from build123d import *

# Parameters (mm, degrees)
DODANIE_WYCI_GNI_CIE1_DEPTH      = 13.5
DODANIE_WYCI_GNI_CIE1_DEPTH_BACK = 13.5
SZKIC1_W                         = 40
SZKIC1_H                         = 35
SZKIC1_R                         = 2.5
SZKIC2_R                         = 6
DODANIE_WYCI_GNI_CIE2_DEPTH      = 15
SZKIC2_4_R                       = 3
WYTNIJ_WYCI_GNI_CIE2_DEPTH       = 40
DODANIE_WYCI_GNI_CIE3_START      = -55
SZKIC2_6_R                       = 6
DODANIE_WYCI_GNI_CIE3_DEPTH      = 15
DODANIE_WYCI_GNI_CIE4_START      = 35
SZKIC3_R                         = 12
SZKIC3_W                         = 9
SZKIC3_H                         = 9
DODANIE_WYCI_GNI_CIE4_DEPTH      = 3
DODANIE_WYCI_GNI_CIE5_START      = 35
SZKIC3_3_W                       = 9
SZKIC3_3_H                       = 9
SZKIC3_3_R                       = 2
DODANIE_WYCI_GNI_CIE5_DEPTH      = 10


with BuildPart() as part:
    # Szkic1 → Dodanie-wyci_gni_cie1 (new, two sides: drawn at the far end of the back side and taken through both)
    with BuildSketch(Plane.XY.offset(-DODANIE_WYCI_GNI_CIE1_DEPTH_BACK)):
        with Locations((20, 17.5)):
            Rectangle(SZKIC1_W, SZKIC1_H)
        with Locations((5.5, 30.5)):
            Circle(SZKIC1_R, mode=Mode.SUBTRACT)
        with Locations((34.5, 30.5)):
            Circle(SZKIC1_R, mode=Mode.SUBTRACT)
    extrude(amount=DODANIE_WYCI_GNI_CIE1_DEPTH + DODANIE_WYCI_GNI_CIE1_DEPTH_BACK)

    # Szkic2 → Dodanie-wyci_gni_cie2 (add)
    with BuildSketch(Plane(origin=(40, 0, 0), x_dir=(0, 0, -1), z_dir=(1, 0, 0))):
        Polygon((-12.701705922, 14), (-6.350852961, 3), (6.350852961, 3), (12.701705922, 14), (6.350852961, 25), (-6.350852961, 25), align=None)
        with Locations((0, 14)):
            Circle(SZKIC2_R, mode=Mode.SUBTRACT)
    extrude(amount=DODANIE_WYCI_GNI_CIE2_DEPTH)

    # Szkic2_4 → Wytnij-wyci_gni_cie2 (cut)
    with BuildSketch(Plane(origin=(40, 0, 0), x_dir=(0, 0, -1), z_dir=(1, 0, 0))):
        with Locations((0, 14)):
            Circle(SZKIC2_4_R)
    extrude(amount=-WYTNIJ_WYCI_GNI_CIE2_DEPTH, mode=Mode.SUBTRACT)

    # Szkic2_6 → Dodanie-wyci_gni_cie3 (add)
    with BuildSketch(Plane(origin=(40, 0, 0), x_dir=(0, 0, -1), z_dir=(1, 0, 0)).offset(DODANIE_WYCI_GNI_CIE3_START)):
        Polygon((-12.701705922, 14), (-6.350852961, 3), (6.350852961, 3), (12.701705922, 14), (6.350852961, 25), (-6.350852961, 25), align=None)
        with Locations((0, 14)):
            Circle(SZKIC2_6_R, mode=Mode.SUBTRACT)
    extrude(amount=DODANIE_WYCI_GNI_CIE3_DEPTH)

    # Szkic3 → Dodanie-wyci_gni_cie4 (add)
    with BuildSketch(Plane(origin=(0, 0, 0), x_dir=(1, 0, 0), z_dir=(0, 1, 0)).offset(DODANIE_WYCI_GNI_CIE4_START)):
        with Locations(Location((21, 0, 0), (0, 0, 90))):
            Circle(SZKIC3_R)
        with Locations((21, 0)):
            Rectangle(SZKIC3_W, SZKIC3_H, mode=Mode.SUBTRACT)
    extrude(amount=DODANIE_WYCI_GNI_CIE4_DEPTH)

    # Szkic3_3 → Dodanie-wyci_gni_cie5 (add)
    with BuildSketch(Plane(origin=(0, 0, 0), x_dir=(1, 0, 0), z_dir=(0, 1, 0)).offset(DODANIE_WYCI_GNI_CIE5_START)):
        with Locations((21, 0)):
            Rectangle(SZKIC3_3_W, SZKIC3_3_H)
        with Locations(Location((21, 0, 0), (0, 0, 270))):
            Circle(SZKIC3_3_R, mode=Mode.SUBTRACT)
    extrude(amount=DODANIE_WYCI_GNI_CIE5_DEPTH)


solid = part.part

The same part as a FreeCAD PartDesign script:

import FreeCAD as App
import Part
import Sketcher
Q = App.Units.Quantity

doc = App.newDocument("Part")
params = doc.addObject("Spreadsheet::Sheet", "Params")
for row, (alias, value) in enumerate([
    ("sketch1_diameter", "5 mm"),
    ("sketch1_width", "40 mm"),
    ("sketch1_height", "35 mm"),
    ("pad1_length", "13.5 mm"),
    ("pad1_length2", "13.5 mm"),
    ("sketch2_diameter", "12 mm"),
    ("pad2_length", "15 mm"),
    ("sketch3_diameter", "6 mm"),
    ("pocket1_length", "40 mm"),
    ("sketch4_diameter", "12 mm"),
    ("pad3_length", "15 mm"),
    ("sketch5_diameter", "24 mm"),
    ("sketch5_width", "9 mm"),
    ("pad4_length", "3 mm"),
    ("sketch6_diameter", "4 mm"),
    ("sketch6_width", "9 mm"),
    ("pad5_length", "10 mm"),
], start=1):
    params.set(f"A{row}", alias)
    params.set(f"B{row}", "=" + value)
    params.setAlias(f"B{row}", alias)

body = doc.addObject("PartDesign::Body", "Body")

# Sketch on XY plane
sketch1 = body.newObject("Sketcher::SketchObject", "Sketch")
sketch1.AttachmentSupport = (doc.getObject("XY_Plane"), [""])
sketch1.MapMode = "FlatFace"
sketch1.addGeometry([
    Part.LineSegment(App.Vector(0, 35, 0), App.Vector(0, 0, 0)),  # 0
    Part.LineSegment(App.Vector(0, 0, 0), App.Vector(40, 0, 0)),  # 1
    Part.LineSegment(App.Vector(40, 0, 0), App.Vector(40, 35, 0)),  # 2
    Part.LineSegment(App.Vector(40, 35, 0), App.Vector(0, 35, 0)),  # 3
    Part.Circle(App.Vector(5.5, 30.5, 0), App.Vector(0, 0, 1), 2.5),  # 4
    Part.Circle(App.Vector(34.5, 30.5, 0), App.Vector(0, 0, 1), 2.5),  # 5
], False)
sketch1.addConstraint([
    Sketcher.Constraint("Coincident", 0, 2, 1, 1),
    Sketcher.Constraint("Coincident", 1, 2, 2, 1),
    Sketcher.Constraint("Coincident", 2, 2, 3, 1),
    Sketcher.Constraint("Coincident", 3, 2, 0, 1),
    Sketcher.Constraint("Vertical", 0),
    Sketcher.Constraint("Horizontal", 1),
    Sketcher.Constraint("Vertical", 2),
    Sketcher.Constraint("Horizontal", 3),
    Sketcher.Constraint("Coincident", 0, 2, -1, 1),
    Sketcher.Constraint("Equal", 4, 5),
    Sketcher.Constraint("Horizontal", 4, 3, 5, 3),
    Sketcher.Constraint("Diameter", 4, Q("5 mm")),
    Sketcher.Constraint("DistanceX", 1, 1, 1, 2, Q("40 mm")),
    Sketcher.Constraint("DistanceY", 0, 2, 0, 1, Q("35 mm")),
    Sketcher.Constraint("DistanceX", 4, 3, 5, 3, Q("29 mm")),
    Sketcher.Constraint("DistanceX", -1, 1, 4, 3, Q("5.5 mm")),
    Sketcher.Constraint("DistanceY", -1, 1, 4, 3, Q("30.5 mm")),
])
sketch1.setExpression("Constraints[11]", "Params.sketch1_diameter")
sketch1.setExpression("Constraints[12]", "Params.sketch1_width")
sketch1.setExpression("Constraints[13]", "Params.sketch1_height")
pad1 = body.newObject("PartDesign::Pad", "Pad")
pad1.Profile = sketch1
pad1.Type = "TwoLengths"
pad1.setExpression("Length", "Params.pad1_length")
pad1.setExpression("Length2", "Params.pad1_length2")

# Sketch on YZ plane
sketch2 = body.newObject("Sketcher::SketchObject", "Sketch001")
sketch2.AttachmentSupport = (doc.getObject("YZ_Plane"), [""])
sketch2.MapMode = "FlatFace"
sketch2.AttachmentOffset = App.Placement(App.Vector(0, 0, 40), App.Rotation())
sketch2.addGeometry([
    Part.LineSegment(App.Vector(14, 13, 0), App.Vector(3, 6, 0)),  # 0
    Part.LineSegment(App.Vector(3, 6, 0), App.Vector(3, -6, 0)),  # 1
    Part.LineSegment(App.Vector(3, -6, 0), App.Vector(14, -13, 0)),  # 2
    Part.LineSegment(App.Vector(14, -13, 0), App.Vector(25, -6, 0)),  # 3
    Part.LineSegment(App.Vector(25, -6, 0), App.Vector(25, 6, 0)),  # 4
    Part.LineSegment(App.Vector(25, 6, 0), App.Vector(14, 13, 0)),  # 5
    Part.Circle(App.Vector(14, 0, 0), App.Vector(0, 0, 1), 6),  # 6
], False)
sketch2.addConstraint([
    Sketcher.Constraint("Coincident", 0, 2, 1, 1),
    Sketcher.Constraint("Coincident", 1, 2, 2, 1),
    Sketcher.Constraint("Coincident", 2, 2, 3, 1),
    Sketcher.Constraint("Coincident", 3, 2, 4, 1),
    Sketcher.Constraint("Coincident", 4, 2, 5, 1),
    Sketcher.Constraint("Coincident", 5, 2, 0, 1),
    Sketcher.Constraint("Vertical", 1),
    Sketcher.Constraint("Vertical", 4),
    Sketcher.Constraint("Symmetric", 2, 2, 5, 2, -1),
    Sketcher.Constraint("PointOnObject", 6, 3, -1),
    Sketcher.Constraint("Parallel", 0, 3),
    Sketcher.Constraint("Parallel", 2, 5),
    Sketcher.Constraint("Horizontal", 1, 2, 3, 2),
    Sketcher.Constraint("Horizontal", 0, 2, 4, 2),
    Sketcher.Constraint("Vertical", 6, 3, 2, 2),
    Sketcher.Constraint("Diameter", 6, Q("12 mm")),
    Sketcher.Constraint("Angle", 0, Q("-150 deg")),
    Sketcher.Constraint("DistanceX", -1, 1, 6, 3, Q("14 mm")),
    Sketcher.Constraint("DistanceX", -1, 1, 0, 2, Q("3 mm")),
    Sketcher.Constraint("DistanceY", 1, 2, 1, 1, Q("12.701706 mm")),
])
sketch2.setExpression("Constraints[15]", "Params.sketch2_diameter")
pad2 = body.newObject("PartDesign::Pad", "Pad001")
pad2.Profile = sketch2
pad2.setExpression("Length", "Params.pad2_length")

# Sketch on YZ plane
sketch3 = body.newObject("Sketcher::SketchObject", "Sketch002")
sketch3.AttachmentSupport = (doc.getObject("YZ_Plane"), [""])
sketch3.MapMode = "FlatFace"
sketch3.AttachmentOffset = App.Placement(App.Vector(0, 0, 40), App.Rotation())
sketch3.addGeometry(Part.Circle(App.Vector(14, 0, 0), App.Vector(0, 0, 1), 3), False)
sketch3.addConstraint([
    Sketcher.Constraint("PointOnObject", 0, 3, -1),
    Sketcher.Constraint("Diameter", 0, Q("6 mm")),
    Sketcher.Constraint("DistanceX", -1, 1, 0, 3, Q("14 mm")),
])
sketch3.setExpression("Constraints[1]", "Params.sketch3_diameter")
pocket1 = body.newObject("PartDesign::Pocket", "Pocket")
pocket1.Profile = sketch3
pocket1.setExpression("Length", "Params.pocket1_length")

# Sketch on YZ plane
sketch4 = body.newObject("Sketcher::SketchObject", "Sketch003")
sketch4.AttachmentSupport = (doc.getObject("YZ_Plane"), [""])
sketch4.MapMode = "FlatFace"
sketch4.AttachmentOffset = App.Placement(App.Vector(0, 0, -15), App.Rotation())
sketch4.addGeometry([
    Part.LineSegment(App.Vector(14, 13, 0), App.Vector(3, 6, 0)),  # 0
    Part.LineSegment(App.Vector(3, 6, 0), App.Vector(3, -6, 0)),  # 1
    Part.LineSegment(App.Vector(3, -6, 0), App.Vector(14, -13, 0)),  # 2
    Part.LineSegment(App.Vector(14, -13, 0), App.Vector(25, -6, 0)),  # 3
    Part.LineSegment(App.Vector(25, -6, 0), App.Vector(25, 6, 0)),  # 4
    Part.LineSegment(App.Vector(25, 6, 0), App.Vector(14, 13, 0)),  # 5
    Part.Circle(App.Vector(14, 0, 0), App.Vector(0, 0, 1), 6),  # 6
], False)
sketch4.addConstraint([
    Sketcher.Constraint("Coincident", 0, 2, 1, 1),
    Sketcher.Constraint("Coincident", 1, 2, 2, 1),
    Sketcher.Constraint("Coincident", 2, 2, 3, 1),
    Sketcher.Constraint("Coincident", 3, 2, 4, 1),
    Sketcher.Constraint("Coincident", 4, 2, 5, 1),
    Sketcher.Constraint("Coincident", 5, 2, 0, 1),
    Sketcher.Constraint("Vertical", 1),
    Sketcher.Constraint("Vertical", 4),
    Sketcher.Constraint("Symmetric", 2, 2, 5, 2, -1),
    Sketcher.Constraint("PointOnObject", 6, 3, -1),
    Sketcher.Constraint("Parallel", 0, 3),
    Sketcher.Constraint("Parallel", 2, 5),
    Sketcher.Constraint("Horizontal", 1, 2, 3, 2),
    Sketcher.Constraint("Horizontal", 0, 2, 4, 2),
    Sketcher.Constraint("Vertical", 6, 3, 2, 2),
    Sketcher.Constraint("Diameter", 6, Q("12 mm")),
    Sketcher.Constraint("Angle", 0, Q("-150 deg")),
    Sketcher.Constraint("DistanceX", -1, 1, 6, 3, Q("14 mm")),
    Sketcher.Constraint("DistanceX", -1, 1, 0, 2, Q("3 mm")),
    Sketcher.Constraint("DistanceY", 1, 2, 1, 1, Q("12.701706 mm")),
])
sketch4.setExpression("Constraints[15]", "Params.sketch4_diameter")
pad3 = body.newObject("PartDesign::Pad", "Pad002")
pad3.Profile = sketch4
pad3.setExpression("Length", "Params.pad3_length")

# Sketch on XZ plane
sketch5 = body.newObject("Sketcher::SketchObject", "Sketch004")
sketch5.AttachmentSupport = (doc.getObject("XZ_Plane"), [""])
sketch5.MapMode = "FlatFace"
sketch5.AttachmentOffset = App.Placement(App.Vector(0, 0, -35), App.Rotation())
sketch5.addGeometry([
    Part.Circle(App.Vector(21, 0, 0), App.Vector(0, 0, 1), 12),  # 0
    Part.LineSegment(App.Vector(26, 4, 0), App.Vector(16, 4, 0)),  # 1
    Part.LineSegment(App.Vector(16, 4, 0), App.Vector(16, -4, 0)),  # 2
    Part.LineSegment(App.Vector(16, -4, 0), App.Vector(26, -4, 0)),  # 3
    Part.LineSegment(App.Vector(26, -4, 0), App.Vector(26, 4, 0)),  # 4
], False)
sketch5.addConstraint([
    Sketcher.Constraint("Coincident", 1, 2, 2, 1),
    Sketcher.Constraint("Coincident", 2, 2, 3, 1),
    Sketcher.Constraint("Coincident", 3, 2, 4, 1),
    Sketcher.Constraint("Coincident", 4, 2, 1, 1),
    Sketcher.Constraint("Horizontal", 1),
    Sketcher.Constraint("Vertical", 2),
    Sketcher.Constraint("Horizontal", 3),
    Sketcher.Constraint("Vertical", 4),
    Sketcher.Constraint("PointOnObject", 0, 3, -1),
    Sketcher.Constraint("Equal", 3, 2),
    Sketcher.Constraint("Diameter", 0, Q("24 mm")),
    Sketcher.Constraint("DistanceX", 1, 2, 1, 1, Q("9 mm")),
    Sketcher.Constraint("DistanceX", -1, 1, 0, 3, Q("21 mm")),
    Sketcher.Constraint("DistanceX", -1, 1, 1, 2, Q("16.5 mm")),
    Sketcher.Constraint("DistanceY", -1, 1, 1, 2, Q("4.5 mm")),
])
sketch5.setExpression("Constraints[10]", "Params.sketch5_diameter")
sketch5.setExpression("Constraints[11]", "Params.sketch5_width")
pad4 = body.newObject("PartDesign::Pad", "Pad003")
pad4.Profile = sketch5
pad4.setExpression("Length", "Params.pad4_length")
pad4.Reversed = True

# Sketch on XZ plane
sketch6 = body.newObject("Sketcher::SketchObject", "Sketch005")
sketch6.AttachmentSupport = (doc.getObject("XZ_Plane"), [""])
sketch6.MapMode = "FlatFace"
sketch6.AttachmentOffset = App.Placement(App.Vector(0, 0, -35), App.Rotation())
sketch6.addGeometry([
    Part.LineSegment(App.Vector(16.5, -4.5, 0), App.Vector(16.5, 4.5, 0)),  # 0
    Part.LineSegment(App.Vector(16.5, 4.5, 0), App.Vector(25.5, 4.5, 0)),  # 1
    Part.LineSegment(App.Vector(25.5, 4.5, 0), App.Vector(25.5, -4.5, 0)),  # 2
    Part.LineSegment(App.Vector(25.5, -4.5, 0), App.Vector(16.5, -4.5, 0)),  # 3
    Part.Circle(App.Vector(21, 0, 0), App.Vector(0, 0, 1), 2),  # 4
], False)
sketch6.addConstraint([
    Sketcher.Constraint("Coincident", 0, 2, 1, 1),
    Sketcher.Constraint("Coincident", 1, 2, 2, 1),
    Sketcher.Constraint("Coincident", 2, 2, 3, 1),
    Sketcher.Constraint("Coincident", 3, 2, 0, 1),
    Sketcher.Constraint("Vertical", 0),
    Sketcher.Constraint("Horizontal", 1),
    Sketcher.Constraint("Vertical", 2),
    Sketcher.Constraint("Horizontal", 3),
    Sketcher.Constraint("PointOnObject", 4, 3, -1),
    Sketcher.Constraint("Equal", 3, 0),
    Sketcher.Constraint("Diameter", 4, Q("4 mm")),
    Sketcher.Constraint("DistanceX", 1, 1, 1, 2, Q("9 mm")),
    Sketcher.Constraint("DistanceX", -1, 1, 4, 3, Q("21 mm")),
    Sketcher.Constraint("DistanceX", -1, 1, 0, 2, Q("16.5 mm")),
    Sketcher.Constraint("DistanceY", -1, 1, 0, 2, Q("4.5 mm")),
])
sketch6.setExpression("Constraints[10]", "Params.sketch6_diameter")
sketch6.setExpression("Constraints[11]", "Params.sketch6_width")
pad5 = body.newObject("PartDesign::Pad", "Pad004")
pad5.Profile = sketch6
pad5.setExpression("Length", "Params.pad5_length")
pad5.Reversed = True

doc.recompute()
